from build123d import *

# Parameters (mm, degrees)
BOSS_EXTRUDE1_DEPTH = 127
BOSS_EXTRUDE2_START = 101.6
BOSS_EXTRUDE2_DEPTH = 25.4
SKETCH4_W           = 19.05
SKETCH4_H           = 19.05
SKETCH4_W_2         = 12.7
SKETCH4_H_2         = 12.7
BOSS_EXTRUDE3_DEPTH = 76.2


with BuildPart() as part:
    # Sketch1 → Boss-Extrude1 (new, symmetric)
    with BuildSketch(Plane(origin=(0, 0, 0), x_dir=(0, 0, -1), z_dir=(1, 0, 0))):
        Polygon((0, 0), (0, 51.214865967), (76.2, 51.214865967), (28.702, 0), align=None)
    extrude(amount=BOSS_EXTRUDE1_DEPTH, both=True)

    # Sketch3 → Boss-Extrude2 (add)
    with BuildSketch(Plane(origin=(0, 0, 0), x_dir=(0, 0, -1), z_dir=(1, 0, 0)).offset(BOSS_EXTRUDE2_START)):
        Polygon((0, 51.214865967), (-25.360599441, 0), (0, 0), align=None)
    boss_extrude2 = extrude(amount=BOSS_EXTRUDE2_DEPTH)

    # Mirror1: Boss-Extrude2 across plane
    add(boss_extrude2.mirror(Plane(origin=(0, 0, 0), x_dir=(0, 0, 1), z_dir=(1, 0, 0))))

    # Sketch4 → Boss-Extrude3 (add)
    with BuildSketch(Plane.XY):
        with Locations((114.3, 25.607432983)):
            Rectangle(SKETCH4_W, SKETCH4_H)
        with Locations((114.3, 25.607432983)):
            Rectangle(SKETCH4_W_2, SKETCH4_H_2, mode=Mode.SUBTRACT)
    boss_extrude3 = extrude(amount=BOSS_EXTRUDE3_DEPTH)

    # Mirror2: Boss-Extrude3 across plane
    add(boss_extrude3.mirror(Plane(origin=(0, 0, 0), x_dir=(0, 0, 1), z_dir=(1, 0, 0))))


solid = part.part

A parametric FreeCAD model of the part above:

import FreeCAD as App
import Part
import Sketcher
Q = App.Units.Quantity

doc = App.newDocument("Part")
params = doc.addObject("Spreadsheet::Sheet", "Params")
for row, (alias, value) in enumerate([
    ("sketch1_height", "3 in"),
    ("sketch1_height2", "1.13 in"),
    ("sketch1_length", "2.75 in"),
    ("pad1_length", "10 in"),
    ("sketch2_length", "2.25 in"),
    ("pad2_length", "1 in"),
    ("sketch3_width", "0.5 in"),
    ("sketch3_width2", "0.75 in"),
    ("pad3_length", "3 in"),
], start=1):
    params.set(f"A{row}", alias)
    params.set(f"B{row}", "=" + value)
    params.setAlias(f"B{row}", alias)

body = doc.addObject("PartDesign::Body", "Body")

# Sketch on YZ plane
sketch1 = body.newObject("Sketcher::SketchObject", "Sketch")
sketch1.AttachmentSupport = (doc.getObject("YZ_Plane"), [""])
sketch1.MapMode = "FlatFace"
sketch1.addGeometry([
    Part.LineSegment(App.Vector(51, 0, 0), App.Vector(0, 0, 0)),
    Part.LineSegment(App.Vector(0, 0, 0), App.Vector(0, -29, 0)),
    Part.LineSegment(App.Vector(0, -29, 0), App.Vector(51, -76, 0)),
    Part.LineSegment(App.Vector(51, -76, 0), App.Vector(51, 0, 0)),
], False)
sketch1.addConstraint([
    Sketcher.Constraint("Coincident", 0, 2, 1, 1),
    Sketcher.Constraint("Coincident", 1, 2, 2, 1),
    Sketcher.Constraint("Coincident", 2, 2, 3, 1),
    Sketcher.Constraint("Coincident", 3, 2, 0, 1),
    Sketcher.Constraint("Horizontal", 0),
    Sketcher.Constraint("Vertical", 1),
    Sketcher.Constraint("Vertical", 3),
    Sketcher.Constraint("Coincident", 0, 2, -1, 1),
    Sketcher.Constraint("DistanceY", 3, 1, 3, 2, Q("3 in")),
    Sketcher.Constraint("DistanceY", 1, 2, 1, 1, Q("1.13 in")),
    Sketcher.Constraint("Distance", 2, Q("2.75 in")),
])
sketch1.setExpression("Constraints[8]", "Params.sketch1_height")
sketch1.setExpression("Constraints[9]", "Params.sketch1_height2")
sketch1.setExpression("Constraints[10]", "Params.sketch1_length")
pad1 = body.newObject("PartDesign::Pad", "Pad")
pad1.Profile = sketch1
pad1.setExpression("Length", "Params.pad1_length")
pad1.Midplane = True

# Sketch on YZ plane
sketch2 = body.newObject("Sketcher::SketchObject", "Sketch001")
sketch2.AttachmentSupport = (doc.getObject("YZ_Plane"), [""])
sketch2.MapMode = "FlatFace"
sketch2.AttachmentOffset = App.Placement(App.Vector(0, 0, 4 * 25.4), App.Rotation())
sketch2.addGeometry([
    Part.LineSegment(App.Vector(51, 0, 0), App.Vector(0, 25, 0)),
    Part.LineSegment(App.Vector(0, 25, 0), App.Vector(0, 0, 0)),
    Part.LineSegment(App.Vector(0, 0, 0), App.Vector(51, 0, 0)),
], False)
sketch2.addConstraint([
    Sketcher.Constraint("Coincident", 0, 2, 1, 1),
    Sketcher.Constraint("Coincident", 1, 2, 2, 1),
    Sketcher.Constraint("Coincident", 2, 2, 0, 1),
    Sketcher.Constraint("Vertical", 1),
    Sketcher.Constraint("Horizontal", 2),
    Sketcher.Constraint("Coincident", 1, 2, -1, 1),
    Sketcher.Constraint("Distance", 0, Q("2.25 in")),
    Sketcher.Constraint("DistanceY", 1, 2, 1, 1, Q("25.360599 mm")),
])
sketch2.setExpression("Constraints[6]", "Params.sketch2_length")
pad2 = body.newObject("PartDesign::Pad", "Pad001")
pad2.Profile = sketch2
pad2.setExpression("Length", "Params.pad2_length")
doc.recompute()

mirrored = body.newObject("PartDesign::Mirrored", "Mirrored")
mirrored.Originals = [pad2]
mirrored.MirrorPlane = (doc.getObject("YZ_Plane"), [""])
body.Tip = mirrored

# Sketch on XY plane
sketch3 = body.newObject("Sketcher::SketchObject", "Sketch002")
sketch3.AttachmentSupport = (doc.getObject("XY_Plane"), [""])
sketch3.MapMode = "FlatFace"
sketch3.addGeometry([
    Part.LineSegment(App.Vector(105, 35, 0), App.Vector(105, 16, 0)),  # 0
    Part.LineSegment(App.Vector(105, 16, 0), App.Vector(124, 16, 0)),  # 1
    Part.LineSegment(App.Vector(124, 16, 0), App.Vector(124, 35, 0)),  # 2
    Part.LineSegment(App.Vector(124, 35, 0), App.Vector(105, 35, 0)),  # 3
    Part.LineSegment(App.Vector(121, 19, 0), App.Vector(108, 19, 0)),  # 4
    Part.LineSegment(App.Vector(108, 19, 0), App.Vector(108, 32, 0)),  # 5
    Part.LineSegment(App.Vector(108, 32, 0), App.Vector(121, 32, 0)),  # 6
    Part.LineSegment(App.Vector(121, 32, 0), App.Vector(121, 19, 0)),  # 7
], False)
sketch3.addConstraint([
    Sketcher.Constraint("Coincident", 0, 2, 1, 1),
    Sketcher.Constraint("Coincident", 1, 2, 2, 1),
    Sketcher.Constraint("Coincident", 2, 2, 3, 1),
    Sketcher.Constraint("Coincident", 3, 2, 0, 1),
    Sketcher.Constraint("Coincident", 4, 2, 5, 1),
    Sketcher.Constraint("Coincident", 5, 2, 6, 1),
    Sketcher.Constraint("Coincident", 6, 2, 7, 1),
    Sketcher.Constraint("Coincident", 7, 2, 4, 1),
    Sketcher.Constraint("Vertical", 0),
    Sketcher.Constraint("Horizontal", 1),
    Sketcher.Constraint("Vertical", 2),
    Sketcher.Constraint("Horizontal", 3),
    Sketcher.Constraint("Horizontal", 4),
    Sketcher.Constraint("Vertical", 5),
    Sketcher.Constraint("Horizontal", 6),
    Sketcher.Constraint("Vertical", 7),
    Sketcher.Constraint("Equal", 3, 0),
    Sketcher.Constraint("Equal", 6, 5),
    Sketcher.Constraint("DistanceX", 4, 2, 4, 1, Q("0.5 in")),
    Sketcher.Constraint("DistanceX", 1, 1, 1, 2, Q("0.75 in")),
    Sketcher.Constraint("DistanceX", -1, 1, 4, 2, Q("4.25 in")),
    Sketcher.Constraint("DistanceX", -1, 1, 0, 2, Q("4.125 in")),
    Sketcher.Constraint("DistanceY", 0, 2, 4, 2, Q("0.125 in")),
    Sketcher.Constraint("DistanceY", -1, 1, 0, 2, Q("16.082433 mm")),
])
sketch3.setExpression("Constraints[18]", "Params.sketch3_width")
sketch3.setExpression("Constraints[19]", "Params.sketch3_width2")
pad3 = body.newObject("PartDesign::Pad", "Pad002")
pad3.Profile = sketch3
pad3.setExpression("Length", "Params.pad3_length")
doc.recompute()

mirrored2 = body.newObject("PartDesign::Mirrored", "Mirrored001")
mirrored2.Originals = [pad3]
mirrored2.MirrorPlane = (doc.getObject("YZ_Plane"), [""])
body.Tip = mirrored2

doc.recompute()
